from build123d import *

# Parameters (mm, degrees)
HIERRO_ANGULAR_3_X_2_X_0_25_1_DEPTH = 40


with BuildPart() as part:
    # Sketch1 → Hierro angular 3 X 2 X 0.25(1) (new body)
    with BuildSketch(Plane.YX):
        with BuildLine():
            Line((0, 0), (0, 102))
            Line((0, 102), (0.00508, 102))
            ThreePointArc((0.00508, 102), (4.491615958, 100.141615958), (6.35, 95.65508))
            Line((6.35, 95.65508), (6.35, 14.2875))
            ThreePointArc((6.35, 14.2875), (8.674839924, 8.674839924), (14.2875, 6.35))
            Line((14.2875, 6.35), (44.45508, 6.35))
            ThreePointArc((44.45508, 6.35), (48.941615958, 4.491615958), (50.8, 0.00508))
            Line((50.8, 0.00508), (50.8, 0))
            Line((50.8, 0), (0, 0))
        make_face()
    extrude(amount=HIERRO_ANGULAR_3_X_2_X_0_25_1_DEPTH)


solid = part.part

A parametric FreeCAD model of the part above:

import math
import FreeCAD as App
import Part
import Sketcher

doc = App.newDocument("Part")
params = doc.addObject("Spreadsheet::Sheet", "Params")
for row, (alias, value) in enumerate([
    ("sketch1_width", "102 mm"),
    ("sketch1_height", "50.8 mm"),
    ("pad1_length", "40 mm"),
], start=1):
    params.set(f"A{row}", alias)
    params.set(f"B{row}", "=" + value)
    params.setAlias(f"B{row}", alias)

body = doc.addObject("PartDesign::Body", "Body")

# Sketch on XY plane
sketch1 = body.newObject("Sketcher::SketchObject", "Sketch")
sketch1.AttachmentSupport = (doc.getObject("XY_Plane"), [""])
sketch1.MapMode = "FlatFace"
sketch1.addGeometry(Part.LineSegment(App.Vector(102, 0, 0), App.Vector(0, 0, 0)), False)
sketch1.addGeometry(Part.LineSegment(App.Vector(0, 0, 0), App.Vector(0, 50.8, 0)), False)
sketch1.addGeometry(Part.LineSegment(App.Vector(0, 50.8, 0), App.Vector(0.005, 50.8, 0)), False)
sketch1.addGeometry(Part.ArcOfCircle(Part.Circle(App.Vector(0.005, 44.455, 0), App.Vector(0, 0, 1), 6.345), math.radians(0), math.radians(90)), False)
sketch1.addGeometry(Part.LineSegment(App.Vector(6.35, 44.455, 0), App.Vector(6.35, 14.287, 0)), False)
sketch1.addGeometry(Part.ArcOfCircle(Part.Circle(App.Vector(14.287, 14.287, 0), App.Vector(0, 0, 1), 7.937), math.radians(180), math.radians(270)), False)
sketch1.addGeometry(Part.LineSegment(App.Vector(14.287, 6.35, 0), App.Vector(95.655, 6.35, 0)), False)
sketch1.addGeometry(Part.ArcOfCircle(Part.Circle(App.Vector(95.655, 0.005, 0), App.Vector(0, 0, 1), 6.345), math.radians(0), math.radians(90)), False)
sketch1.addGeometry(Part.LineSegment(App.Vector(102, 0.005, 0), App.Vector(102, 0, 0)), False)
sketch1.addConstraint(Sketcher.Constraint("Coincident", 0, 2, 1, 1))
sketch1.addConstraint(Sketcher.Constraint("Coincident", 1, 2, 2, 1))
sketch1.addConstraint(Sketcher.Constraint("Tangent", 2, 2, 3, 2))
sketch1.addConstraint(Sketcher.Constraint("Tangent", 3, 1, 4, 1))
sketch1.addConstraint(Sketcher.Constraint("Tangent", 4, 2, 5, 1))
sketch1.addConstraint(Sketcher.Constraint("Tangent", 5, 2, 6, 1))
sketch1.addConstraint(Sketcher.Constraint("Tangent", 6, 2, 7, 2))
sketch1.addConstraint(Sketcher.Constraint("Tangent", 7, 1, 8, 1))
sketch1.addConstraint(Sketcher.Constraint("Coincident", 8, 2, 0, 1))
sketch1.addConstraint(Sketcher.Constraint("Horizontal", 0))
sketch1.addConstraint(Sketcher.Constraint("Vertical", 1))
sketch1.addConstraint(Sketcher.Constraint("Vertical", 4))
sketch1.addConstraint(Sketcher.Constraint("Horizontal", 6))
sketch1.addConstraint(Sketcher.Constraint("Coincident", 0, 2, -1, 1))
sketch1.addConstraint(Sketcher.Constraint("Equal", 3, 7))
sketch1.addConstraint(Sketcher.Constraint("Vertical", 3, 3, 2, 2))
sketch1.addConstraint(Sketcher.Constraint("Equal", 2, 8))
sketch1.addConstraint(Sketcher.Constraint("DistanceX", 0, 2, 0, 1, 102.0))
sketch1.addConstraint(Sketcher.Constraint("DistanceY", 1, 1, 1, 2, 50.8))
sketch1.addConstraint(Sketcher.Constraint("Radius", 5, 7.9375))
sketch1.addConstraint(Sketcher.Constraint("DistanceX", -1, 1, 3, 1, 6.35))
sketch1.addConstraint(Sketcher.Constraint("DistanceY", -1, 1, 5, 2, 6.35))
sketch1.addConstraint(Sketcher.Constraint("Radius", 3, 6.34492))
sketch1.setExpression("Constraints[17]", "Params.sketch1_width")
sketch1.setExpression("Constraints[18]", "Params.sketch1_height")
pad1 = body.newObject("PartDesign::Pad", "Pad")
pad1.Profile = sketch1
pad1.setExpression("Length", "Params.pad1_length")
pad1.Reversed = True

doc.recompute()
